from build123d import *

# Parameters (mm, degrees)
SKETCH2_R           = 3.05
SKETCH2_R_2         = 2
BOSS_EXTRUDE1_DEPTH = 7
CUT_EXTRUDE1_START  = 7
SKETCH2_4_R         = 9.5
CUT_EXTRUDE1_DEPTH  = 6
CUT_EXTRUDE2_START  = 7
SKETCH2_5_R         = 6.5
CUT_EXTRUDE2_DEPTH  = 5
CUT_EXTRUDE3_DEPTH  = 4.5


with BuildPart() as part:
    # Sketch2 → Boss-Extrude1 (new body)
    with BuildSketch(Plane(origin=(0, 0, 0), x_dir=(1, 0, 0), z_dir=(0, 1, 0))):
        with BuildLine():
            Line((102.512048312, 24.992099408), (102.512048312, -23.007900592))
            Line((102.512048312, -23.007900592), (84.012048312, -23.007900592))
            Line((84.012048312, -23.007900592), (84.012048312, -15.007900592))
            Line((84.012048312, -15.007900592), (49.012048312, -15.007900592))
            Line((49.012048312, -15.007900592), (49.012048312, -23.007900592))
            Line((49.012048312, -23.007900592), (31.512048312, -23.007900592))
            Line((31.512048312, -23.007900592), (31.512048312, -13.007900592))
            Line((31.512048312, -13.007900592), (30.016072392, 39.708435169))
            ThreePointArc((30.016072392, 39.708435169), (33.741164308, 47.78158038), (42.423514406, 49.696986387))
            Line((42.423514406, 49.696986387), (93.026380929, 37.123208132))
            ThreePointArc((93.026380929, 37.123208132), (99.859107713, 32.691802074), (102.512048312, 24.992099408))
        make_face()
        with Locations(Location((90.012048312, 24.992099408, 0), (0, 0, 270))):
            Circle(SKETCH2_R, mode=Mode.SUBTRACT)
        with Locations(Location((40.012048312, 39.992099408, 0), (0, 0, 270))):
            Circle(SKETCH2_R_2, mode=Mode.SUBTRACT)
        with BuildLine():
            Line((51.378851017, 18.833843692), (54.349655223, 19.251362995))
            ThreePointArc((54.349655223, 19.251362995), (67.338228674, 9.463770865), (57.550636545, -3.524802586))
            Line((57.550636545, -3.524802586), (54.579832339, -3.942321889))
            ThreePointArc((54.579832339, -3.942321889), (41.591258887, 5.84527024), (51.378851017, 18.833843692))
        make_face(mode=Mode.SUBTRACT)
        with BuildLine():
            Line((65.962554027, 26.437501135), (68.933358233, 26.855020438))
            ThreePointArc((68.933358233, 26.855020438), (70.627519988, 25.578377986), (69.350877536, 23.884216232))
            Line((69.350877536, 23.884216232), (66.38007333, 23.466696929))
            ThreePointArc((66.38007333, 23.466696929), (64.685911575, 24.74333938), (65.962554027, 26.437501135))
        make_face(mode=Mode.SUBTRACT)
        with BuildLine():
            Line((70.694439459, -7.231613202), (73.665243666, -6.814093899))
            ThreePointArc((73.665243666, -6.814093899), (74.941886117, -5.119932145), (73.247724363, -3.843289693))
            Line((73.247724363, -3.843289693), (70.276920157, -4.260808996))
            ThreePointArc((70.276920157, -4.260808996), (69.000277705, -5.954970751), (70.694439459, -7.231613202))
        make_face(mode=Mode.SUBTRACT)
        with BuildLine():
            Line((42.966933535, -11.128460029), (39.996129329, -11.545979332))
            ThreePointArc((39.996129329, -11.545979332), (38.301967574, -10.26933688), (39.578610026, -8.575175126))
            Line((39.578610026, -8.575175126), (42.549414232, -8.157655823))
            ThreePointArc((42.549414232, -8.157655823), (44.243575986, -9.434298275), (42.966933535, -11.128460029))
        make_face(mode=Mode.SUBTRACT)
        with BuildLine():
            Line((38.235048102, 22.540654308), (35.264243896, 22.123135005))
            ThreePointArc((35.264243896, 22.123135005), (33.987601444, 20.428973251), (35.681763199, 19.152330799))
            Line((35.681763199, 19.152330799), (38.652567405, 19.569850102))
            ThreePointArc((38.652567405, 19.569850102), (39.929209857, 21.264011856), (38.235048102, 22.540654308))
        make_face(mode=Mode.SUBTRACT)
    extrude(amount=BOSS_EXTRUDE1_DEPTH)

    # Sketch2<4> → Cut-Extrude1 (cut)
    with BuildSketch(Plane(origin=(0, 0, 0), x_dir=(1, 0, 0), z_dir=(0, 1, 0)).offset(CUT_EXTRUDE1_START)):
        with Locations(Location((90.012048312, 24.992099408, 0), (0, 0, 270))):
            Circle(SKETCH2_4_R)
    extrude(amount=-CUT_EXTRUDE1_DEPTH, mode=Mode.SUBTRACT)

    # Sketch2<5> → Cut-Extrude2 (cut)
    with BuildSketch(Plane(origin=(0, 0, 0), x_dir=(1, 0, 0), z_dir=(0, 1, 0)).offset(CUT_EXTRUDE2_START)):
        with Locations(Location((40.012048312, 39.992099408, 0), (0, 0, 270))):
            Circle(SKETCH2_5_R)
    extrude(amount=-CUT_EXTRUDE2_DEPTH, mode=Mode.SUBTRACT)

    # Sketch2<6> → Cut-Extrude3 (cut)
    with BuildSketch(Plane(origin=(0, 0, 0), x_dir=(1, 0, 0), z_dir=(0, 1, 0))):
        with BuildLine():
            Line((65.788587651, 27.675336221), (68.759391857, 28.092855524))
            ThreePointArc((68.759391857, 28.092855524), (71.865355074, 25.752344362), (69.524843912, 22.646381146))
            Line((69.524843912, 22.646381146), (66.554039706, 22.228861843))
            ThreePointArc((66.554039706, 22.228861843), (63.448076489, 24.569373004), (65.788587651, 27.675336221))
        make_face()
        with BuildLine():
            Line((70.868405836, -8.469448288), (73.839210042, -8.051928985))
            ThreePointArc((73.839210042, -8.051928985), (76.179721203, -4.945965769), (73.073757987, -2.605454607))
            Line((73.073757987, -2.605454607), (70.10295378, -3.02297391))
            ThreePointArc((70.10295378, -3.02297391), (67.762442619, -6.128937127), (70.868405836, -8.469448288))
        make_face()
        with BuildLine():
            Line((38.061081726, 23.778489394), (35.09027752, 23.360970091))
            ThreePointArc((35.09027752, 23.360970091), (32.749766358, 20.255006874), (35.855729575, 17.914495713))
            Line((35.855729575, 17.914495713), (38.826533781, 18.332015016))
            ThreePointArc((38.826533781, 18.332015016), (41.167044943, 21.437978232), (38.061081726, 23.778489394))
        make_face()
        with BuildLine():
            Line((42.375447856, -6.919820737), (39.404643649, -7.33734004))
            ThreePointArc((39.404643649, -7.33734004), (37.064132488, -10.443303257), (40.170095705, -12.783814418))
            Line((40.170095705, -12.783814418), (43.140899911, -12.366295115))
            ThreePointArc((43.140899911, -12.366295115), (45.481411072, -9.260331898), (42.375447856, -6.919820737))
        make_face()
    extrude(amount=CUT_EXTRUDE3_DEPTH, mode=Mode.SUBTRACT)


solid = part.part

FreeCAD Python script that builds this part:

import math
import FreeCAD as App
import Part
import Sketcher

V = App.Vector
Q = App.Units.Quantity

doc = App.newDocument("Part")
body = doc.addObject("PartDesign::Body", "Body")

# Sketch on XZ plane
sketch1 = body.newObject("Sketcher::SketchObject", "Sketch")
sketch1.AttachmentSupport = (doc.getObject("XZ_Plane"), [""])
sketch1.MapMode = "FlatFace"
sketch1.addGeometry([
    Part.LineSegment(V(102.512048, 23.007901, 0), V(102.512048, -24.992099, 0)),  # 0
    Part.ArcOfCircle(Part.Circle(V(90.012048, -24.992099, 0), V(0, 0, 1), 12.5), math.radians(-76.045776), math.radians(0)),  # 1
    Part.LineSegment(V(93.026381, -37.123208, 0), V(42.423514, -49.696986, 0)),  # 2
    Part.ArcOfCircle(Part.Circle(V(40.012048, -39.992099, 0), V(0, 0, 1), 10), math.radians(178.374506), math.radians(283.954224)),  # 3
    Part.LineSegment(V(30.016072, -39.708435, 0), V(31.512048, 13.007901, 0)),  # 4
    Part.LineSegment(V(31.512048, 13.007901, 0), V(31.512048, 23.007901, 0)),  # 5
    Part.LineSegment(V(31.512048, 23.007901, 0), V(49.012048, 23.007901, 0)),  # 6
    Part.LineSegment(V(49.012048, 23.007901, 0), V(49.012048, 15.007901, 0)),  # 7
    Part.LineSegment(V(49.012048, 15.007901, 0), V(84.012048, 15.007901, 0)),  # 8
    Part.LineSegment(V(84.012048, 15.007901, 0), V(84.012048, 23.007901, 0)),  # 9
    Part.LineSegment(V(84.012048, 23.007901, 0), V(102.512048, 23.007901, 0)),  # 10
    Part.ArcOfCircle(Part.Circle(V(70.48568, 5.746211, 0), V(0, 0, 1), 1.5), math.radians(82), math.radians(262)),  # 11
    Part.LineSegment(V(70.27692, 4.260809, 0), V(73.247724, 3.84329, 0)),  # 12
    Part.ArcOfCircle(Part.Circle(V(73.456484, 5.328692, 0), V(0, 0, 1), 1.5), math.radians(-98), math.radians(82)),  # 13
    Part.LineSegment(V(73.665244, 6.814094, 0), V(70.694439, 7.231613, 0)),  # 14
    Part.LineSegment(V(42.966934, 11.12846, 0), V(39.996129, 11.545979, 0)),  # 15
    Part.ArcOfCircle(Part.Circle(V(39.78737, 10.060577, 0), V(0, 0, 1), 1.5), math.radians(82), math.radians(262)),  # 16
    Part.LineSegment(V(39.57861, 8.575175, 0), V(42.549414, 8.157656, 0)),  # 17
    Part.ArcOfCircle(Part.Circle(V(42.758174, 9.643058, 0), V(0, 0, 1), 1.5), math.radians(-98), math.radians(82)),  # 18
    Part.LineSegment(V(51.378851, -18.833844, 0), V(54.349655, -19.251363, 0)),  # 19
    Part.ArcOfCircle(Part.Circle(V(55.950146, -7.86328, 0), V(0, 0, 1), 11.5), math.radians(-98), math.radians(82)),  # 20
    Part.LineSegment(V(57.550637, 3.524803, 0), V(54.579832, 3.942322, 0)),  # 21
    Part.ArcOfCircle(Part.Circle(V(52.979342, -7.445761, 0), V(0, 0, 1), 11.5), math.radians(82), math.radians(262)),  # 22
    Part.Circle(V(90.012048, -24.992099, 0), V(0, 0, 1), 3.05),  # 23
    Part.LineSegment(V(65.962554, -26.437501, 0), V(68.933358, -26.85502, 0)),  # 24
    Part.ArcOfCircle(Part.Circle(V(69.142118, -25.369618, 0), V(0, 0, 1), 1.5), math.radians(-98), math.radians(82)),  # 25
    Part.LineSegment(V(69.350878, -23.884216, 0), V(66.380073, -23.466697, 0)),  # 26
    Part.ArcOfCircle(Part.Circle(V(66.171314, -24.952099, 0), V(0, 0, 1), 1.5), math.radians(82), math.radians(262)),  # 27
    Part.ArcOfCircle(Part.Circle(V(38.443808, -21.055252, 0), V(0, 0, 1), 1.5), math.radians(-98), math.radians(82)),  # 28
    Part.LineSegment(V(38.652567, -19.56985, 0), V(35.681763, -19.152331, 0)),  # 29
    Part.ArcOfCircle(Part.Circle(V(35.473004, -20.637733, 0), V(0, 0, 1), 1.5), math.radians(82), math.radians(262)),  # 30
    Part.LineSegment(V(35.264244, -22.123135, 0), V(38.235048, -22.540654, 0)),  # 31
    Part.Circle(V(40.012048, -39.992099, 0), V(0, 0, 1), 2),  # 32
], False)
sketch1.addConstraint([
    Sketcher.Constraint("Tangent", 0, 2, 1, 2),
    Sketcher.Constraint("Tangent", 1, 1, 2, 1),
    Sketcher.Constraint("Tangent", 2, 2, 3, 2),
    Sketcher.Constraint("Tangent", 3, 1, 4, 1),
    Sketcher.Constraint("Coincident", 4, 2, 5, 1),
    Sketcher.Constraint("Coincident", 5, 2, 6, 1),
    Sketcher.Constraint("Coincident", 6, 2, 7, 1),
    Sketcher.Constraint("Coincident", 7, 2, 8, 1),
    Sketcher.Constraint("Coincident", 8, 2, 9, 1),
    Sketcher.Constraint("Coincident", 9, 2, 10, 1),
    Sketcher.Constraint("Coincident", 10, 2, 0, 1),
    Sketcher.Constraint("Tangent", 11, 2, 12, 1),
    Sketcher.Constraint("Tangent", 12, 2, 13, 1),
    Sketcher.Constraint("Tangent", 13, 2, 14, 1),
    Sketcher.Constraint("Tangent", 14, 2, 11, 1),
    Sketcher.Constraint("Tangent", 15, 2, 16, 1),
    Sketcher.Constraint("Tangent", 16, 2, 17, 1),
    Sketcher.Constraint("Tangent", 17, 2, 18, 1),
    Sketcher.Constraint("Tangent", 18, 2, 15, 1),
    Sketcher.Constraint("Tangent", 19, 2, 20, 1),
    Sketcher.Constraint("Tangent", 20, 2, 21, 1),
    Sketcher.Constraint("Tangent", 21, 2, 22, 1),
    Sketcher.Constraint("Tangent", 22, 2, 19, 1),
    Sketcher.Constraint("Tangent", 24, 2, 25, 1),
    Sketcher.Constraint("Tangent", 25, 2, 26, 1),
    Sketcher.Constraint("Tangent", 26, 2, 27, 1),
    Sketcher.Constraint("Tangent", 27, 2, 24, 1),
    Sketcher.Constraint("Tangent", 28, 2, 29, 1),
    Sketcher.Constraint("Tangent", 29, 2, 30, 1),
    Sketcher.Constraint("Tangent", 30, 2, 31, 1),
    Sketcher.Constraint("Tangent", 31, 2, 28, 1),
    Sketcher.Constraint("Vertical", 0),
    Sketcher.Constraint("Vertical", 5),
    Sketcher.Constraint("Horizontal", 6),
    Sketcher.Constraint("Vertical", 7),
    Sketcher.Constraint("Horizontal", 8),
    Sketcher.Constraint("Vertical", 9),
    Sketcher.Constraint("Horizontal", 10),
    Sketcher.Constraint("Coincident", 23, 3, 1, 3),
    Sketcher.Constraint("Coincident", 32, 3, 3, 3),
    Sketcher.Constraint("Equal", 11, 13),
    Sketcher.Constraint("Equal", 13, 16),
    Sketcher.Constraint("Equal", 16, 18),
    Sketcher.Constraint("Equal", 20, 22),
    Sketcher.Constraint("Equal", 18, 25),
    Sketcher.Constraint("Equal", 25, 27),
    Sketcher.Constraint("Equal", 27, 28),
    Sketcher.Constraint("Equal", 28, 30),
    Sketcher.Constraint("Parallel", 14, 15),
    Sketcher.Constraint("Parallel", 17, 19),
    Sketcher.Constraint("Parallel", 21, 24),
    Sketcher.Constraint("Parallel", 26, 29),
    Sketcher.Constraint("Horizontal", 6, 2, 9, 2),
    Sketcher.Constraint("Equal", 14, 15),
    Sketcher.Constraint("Equal", 17, 19),
    Sketcher.Constraint("Equal", 21, 24),
    Sketcher.Constraint("Equal", 26, 29),
    Sketcher.Constraint("Diameter", 32, Q("4 mm")),
    Sketcher.Constraint("Radius", 3, Q("10 mm")),
    Sketcher.Constraint("Diameter", 23, Q("6.1 mm")),
    Sketcher.Constraint("Radius", 1, Q("12.5 mm")),
    Sketcher.Constraint("Radius", 11, Q("1.5 mm")),
    Sketcher.Constraint("Radius", 20, Q("11.5 mm")),
    Sketcher.Constraint("DistanceX", 8, 1, 8, 2, Q("35 mm")),
    Sketcher.Constraint("DistanceY", 0, 2, 0, 1, Q("48 mm")),
    Sketcher.Constraint("DistanceY", 5, 1, 5, 2, Q("10 mm")),
    Sketcher.Constraint("DistanceY", 7, 2, 7, 1, Q("8 mm")),
    Sketcher.Constraint("Angle", 12, Q("-8 deg")),
    Sketcher.Constraint("Distance", 12, Q("3 mm")),
    Sketcher.Constraint("DistanceX", 6, 1, 6, 2, Q("17.5 mm")),
    Sketcher.Constraint("DistanceX", 10, 1, 10, 2, Q("18.5 mm")),
    Sketcher.Constraint("DistanceX", 3, 3, 1, 3, Q("50 mm")),
    Sketcher.Constraint("DistanceY", 3, 3, 1, 3, Q("15 mm")),
    Sketcher.Constraint("DistanceY", 1, 3, 27, 3, Q("0.04 mm")),
    Sketcher.Constraint("DistanceY", 1, 3, -1, 1, Q("24.992099 mm")),
    Sketcher.Constraint("DistanceX", 2, 2, 27, 3, Q("23.747799 mm")),
    Sketcher.Constraint("DistanceX", -1, 1, 1, 3, Q("90.012048 mm")),
    Sketcher.Constraint("DistanceX", -1, 1, 11, 3, Q("70.48568 mm")),
    Sketcher.Constraint("DistanceY", -1, 1, 11, 3, Q("5.746211 mm")),
    Sketcher.Constraint("DistanceX", -1, 1, 16, 3, Q("39.78737 mm")),
    Sketcher.Constraint("DistanceY", 20, 3, -1, 1, Q("7.86328 mm")),
    Sketcher.Constraint("DistanceX", -1, 1, 22, 3, Q("52.979342 mm")),
    Sketcher.Constraint("DistanceY", -1, 1, 15, 2, Q("11.545979 mm")),
    Sketcher.Constraint("DistanceY", 28, 2, -1, 1, Q("19.56985 mm")),
    Sketcher.Constraint("DistanceX", -1, 1, 31, 2, Q("38.235048 mm")),
])
pad1 = body.newObject("PartDesign::Pad", "Pad")
pad1.Profile = sketch1
pad1.Length = 7
pad1.Reversed = True

# Sketch on XZ plane
sketch2 = body.newObject("Sketcher::SketchObject", "Sketch001")
sketch2.AttachmentSupport = (doc.getObject("XZ_Plane"), [""])
sketch2.MapMode = "FlatFace"
sketch2.AttachmentOffset = App.Placement(V(0, 0, -7), App.Rotation())
sketch2.addGeometry(Part.Circle(V(90.012048, -24.992099, 0), V(0, 0, 1), 9.5), False)
sketch2.addConstraint([
    Sketcher.Constraint("Diameter", 0, Q("19 mm")),
    Sketcher.Constraint("DistanceY", 0, 3, -1, 1, Q("24.992099 mm")),
    Sketcher.Constraint("DistanceX", -1, 1, 0, 3, Q("90.012048 mm")),
])
pocket1 = body.newObject("PartDesign::Pocket", "Pocket")
pocket1.Profile = sketch2
pocket1.Length = 6
pocket1.Reversed = True

# Sketch on XZ plane
sketch3 = body.newObject("Sketcher::SketchObject", "Sketch002")
sketch3.AttachmentSupport = (doc.getObject("XZ_Plane"), [""])
sketch3.MapMode = "FlatFace"
sketch3.AttachmentOffset = App.Placement(V(0, 0, -7), App.Rotation())
sketch3.addGeometry(Part.Circle(V(40.012048, -39.992099, 0), V(0, 0, 1), 6.5), False)
sketch3.addConstraint([
    Sketcher.Constraint("Diameter", 0, Q("13 mm")),
    Sketcher.Constraint("DistanceY", 0, 3, -1, 1, Q("39.992099 mm")),
    Sketcher.Constraint("DistanceX", -1, 1, 0, 3, Q("40.012048 mm")),
])
pocket2 = body.newObject("PartDesign::Pocket", "Pocket001")
pocket2.Profile = sketch3
pocket2.Length = 5
pocket2.Reversed = True

# Sketch on XZ plane
sketch4 = body.newObject("Sketcher::SketchObject", "Sketch003")
sketch4.AttachmentSupport = (doc.getObject("XZ_Plane"), [""])
sketch4.MapMode = "FlatFace"
sketch4.addGeometry([
    Part.LineSegment(V(68.759392, -28.092856, 0), V(65.788588, -27.675336, 0)),  # 0
    Part.ArcOfCircle(Part.Circle(V(66.171314, -24.952099, 0), V(0, 0, 1), 2.75), math.radians(82), math.radians(262)),  # 1
    Part.LineSegment(V(66.55404, -22.228862, 0), V(69.524844, -22.646381, 0)),  # 2
    Part.ArcOfCircle(Part.Circle(V(69.142118, -25.369618, 0), V(0, 0, 1), 2.75), math.radians(-98), math.radians(82)),  # 3
    Part.LineSegment(V(70.868406, 8.469448, 0), V(73.83921, 8.051929, 0)),  # 4
    Part.ArcOfCircle(Part.Circle(V(73.456484, 5.328692, 0), V(0, 0, 1), 2.75), math.radians(-98), math.radians(82)),  # 5
    Part.LineSegment(V(73.073758, 2.605455, 0), V(70.102954, 3.022974, 0)),  # 6
    Part.ArcOfCircle(Part.Circle(V(70.48568, 5.746211, 0), V(0, 0, 1), 2.75), math.radians(82), math.radians(262)),  # 7
    Part.LineSegment(V(38.061082, -23.778489, 0), V(35.090278, -23.36097, 0)),  # 8
    Part.ArcOfCircle(Part.Circle(V(35.473004, -20.637733, 0), V(0, 0, 1), 2.75), math.radians(82), math.radians(262)),  # 9
    Part.LineSegment(V(35.85573, -17.914496, 0), V(38.826534, -18.332015, 0)),  # 10
    Part.ArcOfCircle(Part.Circle(V(38.443808, -21.055252, 0), V(0, 0, 1), 2.75), math.radians(-98), math.radians(82)),  # 11
    Part.LineSegment(V(42.375448, 6.919821, 0), V(39.404644, 7.33734, 0)),  # 12
    Part.ArcOfCircle(Part.Circle(V(39.78737, 10.060577, 0), V(0, 0, 1), 2.75), math.radians(82), math.radians(262)),  # 13
    Part.LineSegment(V(40.170096, 12.783814, 0), V(43.1409, 12.366295, 0)),  # 14
    Part.ArcOfCircle(Part.Circle(V(42.758174, 9.643058, 0), V(0, 0, 1), 2.75), math.radians(-98), math.radians(82)),  # 15
], False)
sketch4.addConstraint([
    Sketcher.Constraint("Tangent", 0, 2, 1, 2),
    Sketcher.Constraint("Tangent", 1, 1, 2, 1),
    Sketcher.Constraint("Tangent", 2, 2, 3, 2),
    Sketcher.Constraint("Tangent", 3, 1, 0, 1),
    Sketcher.Constraint("Tangent", 4, 2, 5, 2),
    Sketcher.Constraint("Tangent", 5, 1, 6, 1),
    Sketcher.Constraint("Tangent", 6, 2, 7, 2),
    Sketcher.Constraint("Tangent", 7, 1, 4, 1),
    Sketcher.Constraint("Tangent", 8, 2, 9, 2),
    Sketcher.Constraint("Tangent", 9, 1, 10, 1),
    Sketcher.Constraint("Tangent", 10, 2, 11, 2),
    Sketcher.Constraint("Tangent", 11, 1, 8, 1),
    Sketcher.Constraint("Tangent", 12, 2, 13, 2),
    Sketcher.Constraint("Tangent", 13, 1, 14, 1),
    Sketcher.Constraint("Tangent", 14, 2, 15, 2),
    Sketcher.Constraint("Tangent", 15, 1, 12, 1),
    Sketcher.Constraint("Equal", 1, 3),
    Sketcher.Constraint("Equal", 3, 5),
    Sketcher.Constraint("Equal", 5, 7),
    Sketcher.Constraint("Equal", 7, 9),
    Sketcher.Constraint("Equal", 9, 11),
    Sketcher.Constraint("Equal", 11, 13),
    Sketcher.Constraint("Equal", 13, 15),
    Sketcher.Constraint("Parallel", 2, 4),
    Sketcher.Constraint("Parallel", 6, 8),
    Sketcher.Constraint("Parallel", 10, 12),
    Sketcher.Constraint("Equal", 2, 4),
    Sketcher.Constraint("Equal", 6, 8),
    Sketcher.Constraint("Equal", 10, 12),
    Sketcher.Constraint("Angle", 0, Q("172 deg")),
    Sketcher.Constraint("Radius", 1, Q("2.75 mm")),
    Sketcher.Constraint("Distance", 0, Q("3 mm")),
    Sketcher.Constraint("DistanceY", 1, 3, -1, 1, Q("24.952099 mm")),
    Sketcher.Constraint("DistanceX", -1, 1, 14, 2, Q("43.1409 mm")),
    Sketcher.Constraint("DistanceY", -1, 1, 5, 3, Q("5.328692 mm")),
    Sketcher.Constraint("DistanceX", -1, 1, 7, 3, Q("70.48568 mm")),
    Sketcher.Constraint("DistanceX", -1, 1, 1, 1, Q("66.55404 mm")),
    Sketcher.Constraint("DistanceY", 8, 2, -1, 1, Q("23.36097 mm")),
    Sketcher.Constraint("DistanceX", -1, 1, 9, 1, Q("35.85573 mm")),
    Sketcher.Constraint("DistanceY", -1, 1, 12, 2, Q("7.33734 mm")),
])
pocket3 = body.newObject("PartDesign::Pocket", "Pocket002")
pocket3.Profile = sketch4
pocket3.Length = 4.5

doc.recompute()
